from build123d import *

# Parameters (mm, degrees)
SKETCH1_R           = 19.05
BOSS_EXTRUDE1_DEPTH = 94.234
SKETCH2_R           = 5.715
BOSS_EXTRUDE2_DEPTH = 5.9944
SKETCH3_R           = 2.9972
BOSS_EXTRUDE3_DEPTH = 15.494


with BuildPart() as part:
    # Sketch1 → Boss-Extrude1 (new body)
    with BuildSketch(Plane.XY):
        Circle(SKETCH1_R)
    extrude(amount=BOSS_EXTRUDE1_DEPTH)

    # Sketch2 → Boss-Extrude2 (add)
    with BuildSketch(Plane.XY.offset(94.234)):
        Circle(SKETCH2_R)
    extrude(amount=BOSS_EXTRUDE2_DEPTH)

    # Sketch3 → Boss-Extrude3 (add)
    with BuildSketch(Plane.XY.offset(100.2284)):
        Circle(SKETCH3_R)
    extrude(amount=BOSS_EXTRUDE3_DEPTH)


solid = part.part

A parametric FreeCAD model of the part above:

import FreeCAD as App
import Part
import Sketcher
from FreeCAD import Vector
Q = App.Units.Quantity

doc = App.newDocument("Part")
params = doc.addObject("Spreadsheet::Sheet", "Params")
for row, (alias, value) in enumerate([
    ("sketch1_diameter", "1.5 in"),
    ("pad1_length", "3.71 in"),
    ("sketch2_diameter", "0.45 in"),
    ("pad2_length", "0.236 in"),
    ("sketch3_diameter", "0.236 in"),
    ("pad3_length", "0.61 in"),
], start=1):
    params.set(f"A{row}", alias)
    params.set(f"B{row}", "=" + value)
    params.setAlias(f"B{row}", alias)

body = doc.addObject("PartDesign::Body", "Body")

sketch1 = body.newObject("Sketcher::SketchObject", "Sketch")
sketch1.AttachmentSupport = (doc.getObject("XY_Plane"), [""])
sketch1.MapMode = "FlatFace"
sketch1.addGeometry(Part.Circle(Vector(0, 0, 0), Vector(0, 0, 1), 19), False)
sketch1.addConstraint([
    Sketcher.Constraint("Coincident", 0, 3, -1, 1),
    Sketcher.Constraint("Diameter", 0, Q("1.5 in")),
])
sketch1.setExpression("Constraints[1]", "Params.sketch1_diameter")
pad1 = body.newObject("PartDesign::Pad", "Pad")
pad1.Profile = sketch1
pad1.setExpression("Length", "Params.pad1_length")

sketch2 = body.newObject("Sketcher::SketchObject", "Sketch001")
sketch2.AttachmentSupport = (doc.getObject("XY_Plane"), [""])
sketch2.MapMode = "FlatFace"
sketch2.AttachmentOffset = App.Placement(Vector(0, 0, 3.71 * 25.4), App.Rotation())
sketch2.addGeometry(Part.Circle(Vector(0, 0, 0), Vector(0, 0, 1), 6), False)
sketch2.addConstraint([
    Sketcher.Constraint("Coincident", 0, 3, -1, 1),
    Sketcher.Constraint("Diameter", 0, Q("0.45 in")),
])
sketch2.setExpression("Constraints[1]", "Params.sketch2_diameter")
pad2 = body.newObject("PartDesign::Pad", "Pad001")
pad2.Profile = sketch2
pad2.setExpression("Length", "Params.pad2_length")

sketch3 = body.newObject("Sketcher::SketchObject", "Sketch002")
sketch3.AttachmentSupport = (doc.getObject("XY_Plane"), [""])
sketch3.MapMode = "FlatFace"
sketch3.AttachmentOffset = App.Placement(Vector(0, 0, 3.946 * 25.4), App.Rotation())
sketch3.addGeometry(Part.Circle(Vector(0, 0, 0), Vector(0, 0, 1), 3), False)
sketch3.addConstraint([
    Sketcher.Constraint("Coincident", 0, 3, -1, 1),
    Sketcher.Constraint("Diameter", 0, Q("0.236 in")),
])
sketch3.setExpression("Constraints[1]", "Params.sketch3_diameter")
pad3 = body.newObject("PartDesign::Pad", "Pad002")
pad3.Profile = sketch3
pad3.setExpression("Length", "Params.pad3_length")

doc.recompute()
